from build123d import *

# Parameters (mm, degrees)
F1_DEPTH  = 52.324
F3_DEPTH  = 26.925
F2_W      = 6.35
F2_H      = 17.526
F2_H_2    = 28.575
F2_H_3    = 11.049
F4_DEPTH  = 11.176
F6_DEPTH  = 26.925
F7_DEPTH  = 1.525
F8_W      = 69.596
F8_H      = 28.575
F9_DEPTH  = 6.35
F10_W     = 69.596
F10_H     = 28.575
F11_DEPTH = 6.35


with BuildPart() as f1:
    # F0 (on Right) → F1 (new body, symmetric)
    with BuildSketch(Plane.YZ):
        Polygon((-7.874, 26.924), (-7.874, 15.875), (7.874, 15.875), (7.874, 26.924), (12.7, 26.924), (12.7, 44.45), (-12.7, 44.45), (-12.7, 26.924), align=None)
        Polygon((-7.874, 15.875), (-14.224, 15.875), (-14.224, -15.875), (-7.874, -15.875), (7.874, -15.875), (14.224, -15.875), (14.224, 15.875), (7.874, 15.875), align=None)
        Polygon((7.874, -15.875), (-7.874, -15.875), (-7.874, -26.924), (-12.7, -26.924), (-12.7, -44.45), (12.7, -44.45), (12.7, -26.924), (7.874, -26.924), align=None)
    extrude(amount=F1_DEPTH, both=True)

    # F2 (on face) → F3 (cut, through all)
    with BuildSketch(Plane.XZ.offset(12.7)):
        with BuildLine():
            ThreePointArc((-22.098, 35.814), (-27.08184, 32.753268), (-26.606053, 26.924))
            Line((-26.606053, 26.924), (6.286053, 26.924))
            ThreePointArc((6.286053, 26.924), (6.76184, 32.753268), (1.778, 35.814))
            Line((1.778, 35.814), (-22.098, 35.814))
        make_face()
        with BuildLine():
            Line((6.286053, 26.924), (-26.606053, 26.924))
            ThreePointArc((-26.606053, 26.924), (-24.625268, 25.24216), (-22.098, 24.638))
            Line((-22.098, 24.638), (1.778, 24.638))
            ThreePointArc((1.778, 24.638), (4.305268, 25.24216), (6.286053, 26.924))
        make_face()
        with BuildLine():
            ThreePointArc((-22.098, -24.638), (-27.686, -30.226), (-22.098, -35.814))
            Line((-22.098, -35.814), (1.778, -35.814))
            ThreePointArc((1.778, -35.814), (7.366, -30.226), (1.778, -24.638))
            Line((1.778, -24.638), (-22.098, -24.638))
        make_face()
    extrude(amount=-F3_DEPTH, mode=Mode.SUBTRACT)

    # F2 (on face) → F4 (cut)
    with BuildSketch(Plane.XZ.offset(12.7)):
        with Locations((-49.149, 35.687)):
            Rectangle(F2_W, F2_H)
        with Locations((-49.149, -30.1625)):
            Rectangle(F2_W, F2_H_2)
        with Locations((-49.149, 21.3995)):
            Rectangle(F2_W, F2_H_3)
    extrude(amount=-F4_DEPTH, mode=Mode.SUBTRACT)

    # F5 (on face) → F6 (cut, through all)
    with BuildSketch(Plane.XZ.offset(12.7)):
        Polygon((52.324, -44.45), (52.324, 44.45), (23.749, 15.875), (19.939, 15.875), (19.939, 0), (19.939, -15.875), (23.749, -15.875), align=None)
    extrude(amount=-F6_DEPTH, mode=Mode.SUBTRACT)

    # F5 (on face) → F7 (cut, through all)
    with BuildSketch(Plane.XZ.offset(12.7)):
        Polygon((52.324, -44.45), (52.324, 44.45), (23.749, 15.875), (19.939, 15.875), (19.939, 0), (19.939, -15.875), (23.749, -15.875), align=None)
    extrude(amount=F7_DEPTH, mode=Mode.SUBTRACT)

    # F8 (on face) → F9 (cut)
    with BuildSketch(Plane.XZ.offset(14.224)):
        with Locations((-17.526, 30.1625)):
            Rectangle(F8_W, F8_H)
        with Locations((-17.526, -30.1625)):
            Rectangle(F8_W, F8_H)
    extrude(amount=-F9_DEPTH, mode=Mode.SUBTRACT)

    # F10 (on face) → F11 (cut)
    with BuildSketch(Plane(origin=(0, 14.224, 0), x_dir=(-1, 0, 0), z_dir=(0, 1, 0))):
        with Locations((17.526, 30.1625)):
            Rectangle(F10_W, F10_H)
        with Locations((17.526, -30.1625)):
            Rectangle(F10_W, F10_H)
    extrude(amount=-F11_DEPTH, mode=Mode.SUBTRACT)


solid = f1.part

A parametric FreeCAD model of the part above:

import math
import FreeCAD as App
import Part
import Sketcher
Q = App.Units.Quantity


def add_polygon(sketch, points):
    """Adds a closed chain of lines whose ends are joined by coincident constraints."""
    first, n = sketch.GeometryCount, len(points)
    for a, b in zip(points, points[1:] + points[:1]):
        sketch.addGeometry(Part.LineSegment(App.Vector(*a, 0), App.Vector(*b, 0)), False)
    for i in range(n):
        sketch.addConstraint(Sketcher.Constraint("Coincident", first + i, 2, first + (i + 1) % n, 1))

doc = App.newDocument("Part")
body = doc.addObject("PartDesign::Body", "Body")

sketch1 = doc.addObject("Sketcher::SketchObject", "Sketch")
body.addObject(sketch1)
sketch1.AttachmentSupport = (doc.YZ_Plane, [""])
sketch1.MapMode = "FlatFace"
add_polygon(sketch1, [(-7.9, 26.9), (-7.9, 15.9), (-14.2, 15.9), (-14.2, -15.9), (-7.9, -15.9), (-7.9, -26.9), (-12.7, -26.9), (-12.7, -44.5), (12.7, -44.5), (12.7, -26.9), (7.9, -26.9), (7.9, -15.9), (14.2, -15.9), (14.2, 15.9), (7.9, 15.9), (7.9, 26.9), (12.7, 26.9), (12.7, 44.5), (-12.7, 44.5), (-12.7, 26.9)])
sketch1.addConstraint(Sketcher.Constraint("Vertical", 0))
sketch1.addConstraint(Sketcher.Constraint("Horizontal", 1))
sketch1.addConstraint(Sketcher.Constraint("Vertical", 2))
sketch1.addConstraint(Sketcher.Constraint("Horizontal", 3))
sketch1.addConstraint(Sketcher.Constraint("Vertical", 4))
sketch1.addConstraint(Sketcher.Constraint("Horizontal", 5))
sketch1.addConstraint(Sketcher.Constraint("Vertical", 6))
sketch1.addConstraint(Sketcher.Constraint("Horizontal", 7))
sketch1.addConstraint(Sketcher.Constraint("Vertical", 8))
sketch1.addConstraint(Sketcher.Constraint("Horizontal", 9))
sketch1.addConstraint(Sketcher.Constraint("Vertical", 10))
sketch1.addConstraint(Sketcher.Constraint("Horizontal", 11))
sketch1.addConstraint(Sketcher.Constraint("Vertical", 12))
sketch1.addConstraint(Sketcher.Constraint("Horizontal", 13))
sketch1.addConstraint(Sketcher.Constraint("Vertical", 14))
sketch1.addConstraint(Sketcher.Constraint("Horizontal", 15))
sketch1.addConstraint(Sketcher.Constraint("Vertical", 16))
sketch1.addConstraint(Sketcher.Constraint("Horizontal", 17))
sketch1.addConstraint(Sketcher.Constraint("Vertical", 18))
sketch1.addConstraint(Sketcher.Constraint("Horizontal", 19))
sketch1.addConstraint(Sketcher.Constraint("Symmetric", 0, 2, 10, 2, -1, 1))
sketch1.addConstraint(Sketcher.Constraint("Symmetric", 2, 2, 12, 2, -1, 1))
sketch1.addConstraint(Sketcher.Constraint("Symmetric", 4, 2, 14, 2, -1, 1))
sketch1.addConstraint(Sketcher.Constraint("Symmetric", 6, 2, 16, 2, -1, 1))
sketch1.addConstraint(Sketcher.Constraint("Symmetric", 8, 2, 18, 2, -1, 1))
sketch1.addConstraint(Sketcher.Constraint("Symmetric", 5, 2, 8, 2, -2))
sketch1.addConstraint(Sketcher.Constraint("Symmetric", 3, 2, 10, 2, -2))
sketch1.addConstraint(Sketcher.Constraint("DistanceX", 7, 1, 7, 2, Q("1 in")))
sketch1.addConstraint(Sketcher.Constraint("DistanceX", 1, 2, 1, 1, Q("0.25 in")))
sketch1.addConstraint(Sketcher.Constraint("DistanceX", 5, 2, 5, 1, Q("0.19 in")))
sketch1.addConstraint(Sketcher.Constraint("DistanceY", 2, 2, 2, 1, Q("1.25 in")))
sketch1.addConstraint(Sketcher.Constraint("DistanceY", 6, 2, 6, 1, Q("0.69 in")))
sketch1.addConstraint(Sketcher.Constraint("DistanceY", 0, 2, 0, 1, Q("0.435 in")))
pad1 = doc.addObject("PartDesign::Pad", "Pad")
body.addObject(pad1)
pad1.Profile = sketch1
pad1.Length = Q("4.12 in")
pad1.Midplane = True

sketch2 = doc.addObject("Sketcher::SketchObject", "Sketch001")
body.addObject(sketch2)
sketch2.AttachmentSupport = (doc.XZ_Plane, [""])
sketch2.MapMode = "FlatFace"
sketch2.AttachmentOffset = App.Placement(App.Vector(0, 0, 0.5 * 25.4), App.Rotation())
sketch2.addGeometry(Part.ArcOfCircle(Part.Circle(App.Vector(-22, 30, 0), App.Vector(0, 0, 1), 6), math.radians(90), math.radians(216)), False)
sketch2.addGeometry(Part.ArcOfCircle(Part.Circle(App.Vector(-22, 30, 0), App.Vector(0, 0, 1), 6), math.radians(-144), math.radians(-90)), False)
sketch2.addGeometry(Part.LineSegment(App.Vector(-22, 25, 0), App.Vector(2, 25, 0)), False)
sketch2.addGeometry(Part.ArcOfCircle(Part.Circle(App.Vector(2, 30, 0), App.Vector(0, 0, 1), 6), math.radians(-90), math.radians(-36)), False)
sketch2.addGeometry(Part.ArcOfCircle(Part.Circle(App.Vector(2, 30, 0), App.Vector(0, 0, 1), 6), math.radians(-36), math.radians(90)), False)
sketch2.addGeometry(Part.LineSegment(App.Vector(2, 36, 0), App.Vector(-22, 36, 0)), False)
sketch2.addGeometry(Part.ArcOfCircle(Part.Circle(App.Vector(-22, -30, 0), App.Vector(0, 0, 1), 6), math.radians(90), math.radians(270)), False)
sketch2.addGeometry(Part.LineSegment(App.Vector(-22, -36, 0), App.Vector(2, -36, 0)), False)
sketch2.addGeometry(Part.ArcOfCircle(Part.Circle(App.Vector(2, -30, 0), App.Vector(0, 0, 1), 6), math.radians(-90), math.radians(90)), False)
sketch2.addGeometry(Part.LineSegment(App.Vector(2, -25, 0), App.Vector(-22, -25, 0)), False)
sketch2.addConstraint(Sketcher.Constraint("Tangent", 0, 2, 1, 1))
sketch2.addConstraint(Sketcher.Constraint("Tangent", 1, 2, 2, 1))
sketch2.addConstraint(Sketcher.Constraint("Tangent", 2, 2, 3, 1))
sketch2.addConstraint(Sketcher.Constraint("Tangent", 3, 2, 4, 1))
sketch2.addConstraint(Sketcher.Constraint("Tangent", 4, 2, 5, 1))
sketch2.addConstraint(Sketcher.Constraint("Tangent", 5, 2, 0, 1))
sketch2.addConstraint(Sketcher.Constraint("Tangent", 6, 2, 7, 1))
sketch2.addConstraint(Sketcher.Constraint("Tangent", 7, 2, 8, 1))
sketch2.addConstraint(Sketcher.Constraint("Tangent", 8, 2, 9, 1))
sketch2.addConstraint(Sketcher.Constraint("Tangent", 9, 2, 6, 1))
sketch2.addConstraint(Sketcher.Constraint("Horizontal", 2))
sketch2.addConstraint(Sketcher.Constraint("Horizontal", 5))
sketch2.addConstraint(Sketcher.Constraint("Horizontal", 7))
sketch2.addConstraint(Sketcher.Constraint("Horizontal", 9))
sketch2.addConstraint(Sketcher.Constraint("Equal", 0, 1))
sketch2.addConstraint(Sketcher.Constraint("Equal", 1, 3))
sketch2.addConstraint(Sketcher.Constraint("Equal", 4, 6))
sketch2.addConstraint(Sketcher.Constraint("Symmetric", 0, 3, 6, 3, -1))
sketch2.addConstraint(Sketcher.Constraint("Horizontal", 0, 2, 3, 2))
sketch2.addConstraint(Sketcher.Constraint("Vertical", 4, 3, 8, 3))
sketch2.addConstraint(Sketcher.Constraint("Radius", 0, Q("0.22 in")))
sketch2.addConstraint(Sketcher.Constraint("DistanceX", 2, 1, 2, 2, Q("0.94 in")))
sketch2.addConstraint(Sketcher.Constraint("DistanceX", 0, 3, -1, 1, Q("0.87 in")))
sketch2.addConstraint(Sketcher.Constraint("DistanceY", -1, 1, 0, 3, Q("1.19 in")))
sketch2.addConstraint(Sketcher.Constraint("DistanceY", -1, 1, 0, 2, Q("1.06 in")))
pocket1 = doc.addObject("PartDesign::Pocket", "Pocket")
body.addObject(pocket1)
pocket1.Profile = sketch2
pocket1.Type = "ThroughAll"

sketch3 = doc.addObject("Sketcher::SketchObject", "Sketch002")
body.addObject(sketch3)
sketch3.AttachmentSupport = (doc.XZ_Plane, [""])
sketch3.MapMode = "FlatFace"
sketch3.AttachmentOffset = App.Placement(App.Vector(0, 0, 0.5 * 25.4), App.Rotation())
add_polygon(sketch3, [(-52, 44), (-52, 16), (-46, 16), (-46, 44)])
add_polygon(sketch3, [(-52, -16), (-52, -44), (-46, -44), (-46, -16)])
sketch3.addConstraint(Sketcher.Constraint("Vertical", 0))
sketch3.addConstraint(Sketcher.Constraint("Horizontal", 1))
sketch3.addConstraint(Sketcher.Constraint("Vertical", 2))
sketch3.addConstraint(Sketcher.Constraint("Horizontal", 3))
sketch3.addConstraint(Sketcher.Constraint("Vertical", 4))
sketch3.addConstraint(Sketcher.Constraint("Horizontal", 5))
sketch3.addConstraint(Sketcher.Constraint("Vertical", 6))
sketch3.addConstraint(Sketcher.Constraint("Horizontal", 7))
sketch3.addConstraint(Sketcher.Constraint("Symmetric", 3, 2, 4, 2, -1))
sketch3.addConstraint(Sketcher.Constraint("Symmetric", 1, 2, 6, 2, -1))
sketch3.addConstraint(Sketcher.Constraint("DistanceX", 1, 1, 1, 2, Q("0.25 in")))
sketch3.addConstraint(Sketcher.Constraint("DistanceY", 4, 2, 3, 2, Q("3.5 in")))
sketch3.addConstraint(Sketcher.Constraint("DistanceY", 0, 2, 0, 1, Q("1.125 in")))
sketch3.addConstraint(Sketcher.Constraint("DistanceX", 0, 2, -1, 1, Q("2.06 in")))
pocket2 = doc.addObject("PartDesign::Pocket", "Pocket001")
body.addObject(pocket2)
pocket2.Profile = sketch3
pocket2.Length = Q("0.44 in")

sketch4 = doc.addObject("Sketcher::SketchObject", "Sketch003")
body.addObject(sketch4)
sketch4.AttachmentSupport = (doc.XZ_Plane, [""])
sketch4.MapMode = "FlatFace"
sketch4.AttachmentOffset = App.Placement(App.Vector(0, 0, 0.5 * 25.4), App.Rotation())
add_polygon(sketch4, [(52.3, -44.5), (52.3, 44.5), (23.7, 15.9), (19.9, 15.9), (19.9, -15.9), (23.7, -15.9)])
sketch4.addConstraint(Sketcher.Constraint("Vertical", 0))
sketch4.addConstraint(Sketcher.Constraint("Horizontal", 2))
sketch4.addConstraint(Sketcher.Constraint("Vertical", 3))
sketch4.addConstraint(Sketcher.Constraint("Horizontal", 4))
sketch4.addConstraint(Sketcher.Constraint("Symmetric", 1, 2, 4, 2, -1))
sketch4.addConstraint(Sketcher.Constraint("Perpendicular", 1, 5))
sketch4.addConstraint(Sketcher.Constraint("Equal", 1, 5))
sketch4.addConstraint(Sketcher.Constraint("DistanceY", 0, 1, 0, 2, Q("3.5 in")))
sketch4.addConstraint(Sketcher.Constraint("DistanceX", 2, 2, 2, 1, Q("0.15 in")))
sketch4.addConstraint(Sketcher.Constraint("DistanceY", 3, 2, 3, 1, Q("1.25 in")))
sketch4.addConstraint(Sketcher.Constraint("DistanceX", -1, 1, 0, 2, Q("2.06 in")))
pocket3 = doc.addObject("PartDesign::Pocket", "Pocket002")
body.addObject(pocket3)
pocket3.Profile = sketch4
pocket3.Type = "ThroughAll"

sketch5 = doc.addObject("Sketcher::SketchObject", "Sketch004")
body.addObject(sketch5)
sketch5.AttachmentSupport = (doc.XZ_Plane, [""])
sketch5.MapMode = "FlatFace"
sketch5.AttachmentOffset = App.Placement(App.Vector(0, 0, 0.5 * 25.4), App.Rotation())
add_polygon(sketch5, [(52.3, -44.5), (52.3, 44.5), (23.7, 15.9), (19.9, 15.9), (19.9, -15.9), (23.7, -15.9)])
sketch5.addConstraint(Sketcher.Constraint("Vertical", 0))
sketch5.addConstraint(Sketcher.Constraint("Horizontal", 2))
sketch5.addConstraint(Sketcher.Constraint("Vertical", 3))
sketch5.addConstraint(Sketcher.Constraint("Horizontal", 4))
sketch5.addConstraint(Sketcher.Constraint("Symmetric", 1, 2, 4, 2, -1))
sketch5.addConstraint(Sketcher.Constraint("Perpendicular", 1, 5))
sketch5.addConstraint(Sketcher.Constraint("Equal", 1, 5))
sketch5.addConstraint(Sketcher.Constraint("DistanceY", 0, 1, 0, 2, Q("3.5 in")))
sketch5.addConstraint(Sketcher.Constraint("DistanceX", 2, 2, 2, 1, Q("0.15 in")))
sketch5.addConstraint(Sketcher.Constraint("DistanceY", 3, 2, 3, 1, Q("1.25 in")))
sketch5.addConstraint(Sketcher.Constraint("DistanceX", -1, 1, 0, 2, Q("2.06 in")))
pocket4 = doc.addObject("PartDesign::Pocket", "Pocket003")
body.addObject(pocket4)
pocket4.Profile = sketch5
pocket4.Type = "ThroughAll"
pocket4.Reversed = True

sketch6 = doc.addObject("Sketcher::SketchObject", "Sketch005")
body.addObject(sketch6)
sketch6.AttachmentSupport = (doc.XZ_Plane, [""])
sketch6.MapMode = "FlatFace"
sketch6.AttachmentOffset = App.Placement(App.Vector(0, 0, 0.56 * 25.4), App.Rotation())
add_polygon(sketch6, [(-52, 44), (-52, 16), (17, 16), (17, 44)])
add_polygon(sketch6, [(-52, -16), (-52, -44), (17, -44), (17, -16)])
sketch6.addConstraint(Sketcher.Constraint("Vertical", 0))
sketch6.addConstraint(Sketcher.Constraint("Horizontal", 1))
sketch6.addConstraint(Sketcher.Constraint("Vertical", 2))
sketch6.addConstraint(Sketcher.Constraint("Horizontal", 3))
sketch6.addConstraint(Sketcher.Constraint("Vertical", 4))
sketch6.addConstraint(Sketcher.Constraint("Horizontal", 5))
sketch6.addConstraint(Sketcher.Constraint("Vertical", 6))
sketch6.addConstraint(Sketcher.Constraint("Horizontal", 7))
sketch6.addConstraint(Sketcher.Constraint("Symmetric", 3, 2, 4, 2, -1))
sketch6.addConstraint(Sketcher.Constraint("Symmetric", 1, 2, 6, 2, -1))
sketch6.addConstraint(Sketcher.Constraint("DistanceX", 1, 1, 1, 2, Q("2.74 in")))
sketch6.addConstraint(Sketcher.Constraint("DistanceY", 4, 2, 3, 2, Q("3.5 in")))
sketch6.addConstraint(Sketcher.Constraint("DistanceY", 0, 2, 0, 1, Q("1.125 in")))
sketch6.addConstraint(Sketcher.Constraint("DistanceX", 0, 2, -1, 1, Q("2.06 in")))
pocket5 = doc.addObject("PartDesign::Pocket", "Pocket004")
body.addObject(pocket5)
pocket5.Profile = sketch6
pocket5.Length = Q("0.25 in")

sketch7 = doc.addObject("Sketcher::SketchObject", "Sketch006")
body.addObject(sketch7)
sketch7.AttachmentSupport = (doc.XZ_Plane, [""])
sketch7.MapMode = "FlatFace"
sketch7.AttachmentOffset = App.Placement(App.Vector(0, 0, -0.56 * 25.4), App.Rotation())
add_polygon(sketch7, [(17, 44), (17, 16), (-52, 16), (-52, 44)])
add_polygon(sketch7, [(17, -16), (17, -44), (-52, -44), (-52, -16)])
sketch7.addConstraint(Sketcher.Constraint("Vertical", 0))
sketch7.addConstraint(Sketcher.Constraint("Horizontal", 1))
sketch7.addConstraint(Sketcher.Constraint("Vertical", 2))
sketch7.addConstraint(Sketcher.Constraint("Horizontal", 3))
sketch7.addConstraint(Sketcher.Constraint("Vertical", 4))
sketch7.addConstraint(Sketcher.Constraint("Horizontal", 5))
sketch7.addConstraint(Sketcher.Constraint("Vertical", 6))
sketch7.addConstraint(Sketcher.Constraint("Horizontal", 7))
sketch7.addConstraint(Sketcher.Constraint("Symmetric", 3, 2, 4, 2, -1))
sketch7.addConstraint(Sketcher.Constraint("Symmetric", 1, 2, 6, 2, -1))
sketch7.addConstraint(Sketcher.Constraint("DistanceX", 1, 2, 1, 1, Q("2.74 in")))
sketch7.addConstraint(Sketcher.Constraint("DistanceY", 4, 2, 3, 2, Q("3.5 in")))
sketch7.addConstraint(Sketcher.Constraint("DistanceY", 0, 2, 0, 1, Q("1.125 in")))
sketch7.addConstraint(Sketcher.Constraint("DistanceX", -1, 1, 0, 2, Q("0.68 in")))
pocket6 = doc.addObject("PartDesign::Pocket", "Pocket005")
body.addObject(pocket6)
pocket6.Profile = sketch7
pocket6.Length = Q("0.25 in")
pocket6.Reversed = True

doc.recompute()
